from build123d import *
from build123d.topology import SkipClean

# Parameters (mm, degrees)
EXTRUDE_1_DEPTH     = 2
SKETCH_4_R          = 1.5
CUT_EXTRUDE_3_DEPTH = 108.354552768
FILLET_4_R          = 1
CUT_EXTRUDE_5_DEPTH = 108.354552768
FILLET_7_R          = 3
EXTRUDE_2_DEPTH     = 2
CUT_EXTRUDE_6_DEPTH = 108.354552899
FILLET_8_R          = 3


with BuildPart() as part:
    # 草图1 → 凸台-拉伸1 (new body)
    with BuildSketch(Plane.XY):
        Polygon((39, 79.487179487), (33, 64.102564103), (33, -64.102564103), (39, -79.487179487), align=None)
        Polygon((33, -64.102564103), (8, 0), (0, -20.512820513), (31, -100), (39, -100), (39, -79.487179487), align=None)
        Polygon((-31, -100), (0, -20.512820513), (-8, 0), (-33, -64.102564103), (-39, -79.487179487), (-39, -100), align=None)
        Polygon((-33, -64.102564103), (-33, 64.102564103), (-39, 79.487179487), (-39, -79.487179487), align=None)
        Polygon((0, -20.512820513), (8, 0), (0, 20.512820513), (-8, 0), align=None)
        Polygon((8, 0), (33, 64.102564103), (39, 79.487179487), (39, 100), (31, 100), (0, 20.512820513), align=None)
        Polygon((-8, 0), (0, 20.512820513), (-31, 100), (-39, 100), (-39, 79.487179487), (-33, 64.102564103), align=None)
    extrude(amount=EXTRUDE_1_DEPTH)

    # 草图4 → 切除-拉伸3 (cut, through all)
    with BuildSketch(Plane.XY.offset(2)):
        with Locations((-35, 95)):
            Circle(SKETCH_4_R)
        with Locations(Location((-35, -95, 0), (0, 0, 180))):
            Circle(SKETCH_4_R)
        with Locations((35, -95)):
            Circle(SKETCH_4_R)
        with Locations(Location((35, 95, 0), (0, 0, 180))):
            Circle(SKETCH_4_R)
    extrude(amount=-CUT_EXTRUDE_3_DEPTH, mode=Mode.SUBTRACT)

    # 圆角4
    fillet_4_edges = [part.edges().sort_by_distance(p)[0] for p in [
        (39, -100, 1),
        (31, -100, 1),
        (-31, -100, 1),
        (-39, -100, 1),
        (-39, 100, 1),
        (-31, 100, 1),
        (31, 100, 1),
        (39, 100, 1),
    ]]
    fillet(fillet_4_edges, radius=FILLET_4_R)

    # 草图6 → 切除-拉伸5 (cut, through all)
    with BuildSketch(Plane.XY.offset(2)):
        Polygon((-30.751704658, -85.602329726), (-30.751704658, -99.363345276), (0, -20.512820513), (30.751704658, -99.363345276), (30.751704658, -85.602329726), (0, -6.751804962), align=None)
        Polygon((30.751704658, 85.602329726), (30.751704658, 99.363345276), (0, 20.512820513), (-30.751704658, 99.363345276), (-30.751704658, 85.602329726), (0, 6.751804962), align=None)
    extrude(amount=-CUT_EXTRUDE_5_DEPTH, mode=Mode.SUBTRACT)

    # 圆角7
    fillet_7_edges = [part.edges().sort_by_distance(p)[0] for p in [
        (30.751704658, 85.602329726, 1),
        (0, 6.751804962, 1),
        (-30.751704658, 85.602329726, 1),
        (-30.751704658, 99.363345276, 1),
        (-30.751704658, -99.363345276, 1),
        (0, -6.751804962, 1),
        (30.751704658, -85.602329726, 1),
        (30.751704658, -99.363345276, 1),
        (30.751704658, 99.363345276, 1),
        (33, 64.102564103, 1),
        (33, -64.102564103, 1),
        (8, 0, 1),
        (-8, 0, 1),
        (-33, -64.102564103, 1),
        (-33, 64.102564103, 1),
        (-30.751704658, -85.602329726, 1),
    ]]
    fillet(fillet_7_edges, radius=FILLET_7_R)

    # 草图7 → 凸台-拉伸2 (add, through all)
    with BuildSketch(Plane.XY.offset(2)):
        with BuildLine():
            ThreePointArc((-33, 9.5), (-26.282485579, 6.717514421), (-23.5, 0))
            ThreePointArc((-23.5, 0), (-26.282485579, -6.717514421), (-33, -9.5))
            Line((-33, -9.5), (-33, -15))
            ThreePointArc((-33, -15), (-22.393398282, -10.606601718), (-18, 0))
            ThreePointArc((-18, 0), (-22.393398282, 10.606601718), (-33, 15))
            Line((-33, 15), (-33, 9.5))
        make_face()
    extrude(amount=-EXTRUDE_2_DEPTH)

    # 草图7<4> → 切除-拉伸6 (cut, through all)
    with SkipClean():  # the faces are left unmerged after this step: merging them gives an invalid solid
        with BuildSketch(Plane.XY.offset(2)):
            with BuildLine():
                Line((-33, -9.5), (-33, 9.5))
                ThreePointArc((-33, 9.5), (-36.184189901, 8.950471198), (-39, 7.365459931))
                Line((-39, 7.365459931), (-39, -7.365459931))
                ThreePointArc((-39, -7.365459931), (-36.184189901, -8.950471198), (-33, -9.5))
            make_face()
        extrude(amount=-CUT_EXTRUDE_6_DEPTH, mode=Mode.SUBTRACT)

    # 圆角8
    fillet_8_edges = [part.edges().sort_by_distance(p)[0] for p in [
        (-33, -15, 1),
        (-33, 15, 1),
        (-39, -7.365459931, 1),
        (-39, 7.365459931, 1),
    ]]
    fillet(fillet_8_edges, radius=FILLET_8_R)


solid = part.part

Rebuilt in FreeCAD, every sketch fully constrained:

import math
import FreeCAD as App
import Part
import Sketcher
Q = App.Units.Quantity


def edges_at(feature, points):
    """Names of the edges that pass closest to the given points."""
    edges = feature.Shape.Edges
    near = lambda p: min(range(len(edges)), key=lambda i: edges[i].distToShape(Part.Vertex(*p))[0])
    return sorted({f"Edge{near(p) + 1}" for p in points})


def add_polygon(sketch, points):
    """Adds a closed chain of lines whose ends are joined by coincident constraints."""
    first, n = sketch.GeometryCount, len(points)
    for a, b in zip(points, points[1:] + points[:1]):
        sketch.addGeometry(Part.LineSegment(App.Vector(*a, 0), App.Vector(*b, 0)), False)
    for i in range(n):
        sketch.addConstraint(Sketcher.Constraint("Coincident", first + i, 2, first + (i + 1) % n, 1))

doc = App.newDocument("Part")
body = doc.addObject("PartDesign::Body", "Body")

# Sketch on XY plane
sketch1 = doc.addObject("Sketcher::SketchObject", "Sketch")
body.addObject(sketch1)
sketch1.AttachmentSupport = (doc.XY_Plane, [""])
sketch1.MapMode = "FlatFace"
add_polygon(sketch1, [(-31, 100), (-39, 100), (-39, -100), (-31, -100), (0, -20.512821), (31, -100), (39, -100), (39, 100), (31, 100), (0, 20.512821)])  # lines 0-9
add_polygon(sketch1, [(8, 0), (33, 64.102564), (33, -64.102564)])  # lines 10-12
add_polygon(sketch1, [(-33, 64.102564), (-8, 0), (-33, -64.102564)])  # lines 13-15
sketch1.addConstraint([
    Sketcher.Constraint("Horizontal", 0),
    Sketcher.Constraint("Vertical", 1),
    Sketcher.Constraint("Horizontal", 2),
    Sketcher.Constraint("Horizontal", 5),
    Sketcher.Constraint("Vertical", 6),
    Sketcher.Constraint("Horizontal", 7),
    Sketcher.Constraint("Vertical", 11),
    Sketcher.Constraint("Vertical", 15),
    Sketcher.Constraint("Symmetric", 0, 2, 5, 2, -1, 1),
    Sketcher.Constraint("Symmetric", 2, 2, 7, 2, -1, 1),
    Sketcher.Constraint("Symmetric", 3, 2, 8, 2, -1, 1),
    Sketcher.Constraint("Symmetric", 12, 2, 13, 2, -1, 1),
    Sketcher.Constraint("Symmetric", 10, 2, 14, 2, -1, 1),
    Sketcher.Constraint("Symmetric", 2, 2, 4, 2, -2),
    Sketcher.Constraint("PointOnObject", 3, 2, -2),
    Sketcher.Constraint("PointOnObject", 12, 2, -1),
    Sketcher.Constraint("Parallel", 4, 9),
    Sketcher.Constraint("Parallel", 8, 10),
    Sketcher.Constraint("Parallel", 9, 12),
    Sketcher.Constraint("Parallel", 12, 13),
    Sketcher.Constraint("DistanceX", 0, 2, 0, 1, Q("8 mm")),
    Sketcher.Constraint("DistanceY", 1, 2, 1, 1, Q("200 mm")),
    Sketcher.Constraint("DistanceX", 0, 2, -1, 1, Q("39 mm")),
    Sketcher.Constraint("DistanceX", -1, 1, 10, 2, Q("33 mm")),
    Sketcher.Constraint("DistanceX", -1, 1, 12, 2, Q("8 mm")),
    Sketcher.Constraint("DistanceY", 11, 2, 11, 1, Q("128.205128 mm")),
])
pad1 = doc.addObject("PartDesign::Pad", "Pad")
body.addObject(pad1)
pad1.Profile = sketch1
pad1.Length = 2

# Sketch on XY plane
sketch2 = doc.addObject("Sketcher::SketchObject", "Sketch001")
body.addObject(sketch2)
sketch2.AttachmentSupport = (doc.XY_Plane, [""])
sketch2.MapMode = "FlatFace"
sketch2.AttachmentOffset = App.Placement(App.Vector(0, 0, 2), App.Rotation())
sketch2.addGeometry([
    Part.Circle(App.Vector(-35, 95, 0), App.Vector(0, 0, 1), 1.5),
    Part.Circle(App.Vector(-35, -95, 0), App.Vector(0, 0, 1), 1.5),
    Part.Circle(App.Vector(35, -95, 0), App.Vector(0, 0, 1), 1.5),
    Part.Circle(App.Vector(35, 95, 0), App.Vector(0, 0, 1), 1.5),
], False)
sketch2.addConstraint([
    Sketcher.Constraint("Equal", 0, 1),
    Sketcher.Constraint("Equal", 1, 2),
    Sketcher.Constraint("Equal", 2, 3),
    Sketcher.Constraint("Symmetric", 0, 3, 2, 3, -1, 1),
    Sketcher.Constraint("Symmetric", 1, 3, 3, 3, -1, 1),
    Sketcher.Constraint("Symmetric", 1, 3, 2, 3, -2),
    Sketcher.Constraint("Diameter", 0, Q("3 mm")),
    Sketcher.Constraint("DistanceX", 0, 3, -1, 1, Q("35 mm")),
    Sketcher.Constraint("DistanceY", -1, 1, 0, 3, Q("95 mm")),
])
pocket1 = doc.addObject("PartDesign::Pocket", "Pocket")
body.addObject(pocket1)
pocket1.Profile = sketch2
pocket1.Type = "ThroughAll"
doc.recompute()

fillet = doc.addObject("PartDesign::Fillet", "Fillet")
body.addObject(fillet)
fillet.Base = (pocket1, edges_at(pocket1, [
    (39, -100, 1),
    (31, -100, 1),
    (-31, -100, 1),
    (-39, -100, 1),
    (-39, 100, 1),
    (-31, 100, 1),
    (31, 100, 1),
    (39, 100, 1),
]))
fillet.Radius = 1

# Sketch on XY plane
sketch3 = doc.addObject("Sketcher::SketchObject", "Sketch002")
body.addObject(sketch3)
sketch3.AttachmentSupport = (doc.XY_Plane, [""])
sketch3.MapMode = "FlatFace"
sketch3.AttachmentOffset = App.Placement(App.Vector(0, 0, 2), App.Rotation())
add_polygon(sketch3, [(-30.751705, -85.60233), (-30.751705, -99.363345), (0, -20.512821), (30.751705, -99.363345), (30.751705, -85.60233), (0, -6.751805)])  # lines 0-5
add_polygon(sketch3, [(30.751705, 85.60233), (30.751705, 99.363345), (0, 20.512821), (-30.751705, 99.363345), (-30.751705, 85.60233), (0, 6.751805)])  # lines 6-11
sketch3.addConstraint([
    Sketcher.Constraint("Vertical", 0),
    Sketcher.Constraint("Vertical", 3),
    Sketcher.Constraint("Vertical", 6),
    Sketcher.Constraint("Vertical", 9),
    Sketcher.Constraint("Symmetric", 0, 2, 6, 2, -1, 1),
    Sketcher.Constraint("Symmetric", 1, 2, 7, 2, -1, 1),
    Sketcher.Constraint("Symmetric", 2, 2, 8, 2, -1, 1),
    Sketcher.Constraint("Symmetric", 4, 2, 10, 2, -1, 1),
    Sketcher.Constraint("Symmetric", 0, 2, 2, 2, -2),
    Sketcher.Constraint("PointOnObject", 1, 2, -2),
    Sketcher.Constraint("PointOnObject", 4, 2, -2),
    Sketcher.Constraint("Parallel", 2, 4),
    Sketcher.Constraint("Parallel", 1, 5),
    Sketcher.Constraint("Parallel", 8, 10),
    Sketcher.Constraint("Parallel", 7, 11),
    Sketcher.Constraint("DistanceY", 0, 2, 0, 1, Q("13.761016 mm")),
    Sketcher.Constraint("DistanceY", 1, 2, -1, 1, Q("20.512821 mm")),
    Sketcher.Constraint("DistanceY", 3, 2, -1, 1, Q("85.60233 mm")),
    Sketcher.Constraint("DistanceX", 0, 2, 2, 2, Q("61.503409 mm")),
])
pocket2 = doc.addObject("PartDesign::Pocket", "Pocket001")
body.addObject(pocket2)
pocket2.Profile = sketch3
pocket2.Type = "ThroughAll"
doc.recompute()

fillet2 = doc.addObject("PartDesign::Fillet", "Fillet001")
body.addObject(fillet2)
fillet2.Base = (pocket2, edges_at(pocket2, [
    (30.752, 85.602, 1),
    (0, 6.752, 1),
    (-30.752, 85.602, 1),
    (-30.752, 99.363, 1),
    (-30.752, -99.363, 1),
    (0, -6.752, 1),
    (30.752, -85.602, 1),
    (30.752, -99.363, 1),
    (30.752, 99.363, 1),
    (33, 64.103, 1),
    (33, -64.103, 1),
    (8, 0, 1),
    (-8, 0, 1),
    (-33, -64.103, 1),
    (-33, 64.103, 1),
    (-30.752, -85.602, 1),
]))
fillet2.Radius = 3

# Sketch on XY plane
sketch4 = doc.addObject("Sketcher::SketchObject", "Sketch003")
body.addObject(sketch4)
sketch4.AttachmentSupport = (doc.XY_Plane, [""])
sketch4.MapMode = "FlatFace"
sketch4.AttachmentOffset = App.Placement(App.Vector(0, 0, 2), App.Rotation())
sketch4.addGeometry([
    Part.ArcOfCircle(Part.Circle(App.Vector(-33, 0, 0), App.Vector(0, 0, 1), 9.5), math.radians(0), math.radians(90)),  # 0
    Part.ArcOfCircle(Part.Circle(App.Vector(-33, 0, 0), App.Vector(0, 0, 1), 9.5), math.radians(-90), math.radians(0)),  # 1
    Part.LineSegment(App.Vector(-33, -9.5, 0), App.Vector(-33, -15, 0)),  # 2
    Part.ArcOfCircle(Part.Circle(App.Vector(-33, 0, 0), App.Vector(0, 0, 1), 15), math.radians(-90), math.radians(0)),  # 3
    Part.ArcOfCircle(Part.Circle(App.Vector(-33, 0, 0), App.Vector(0, 0, 1), 15), math.radians(0), math.radians(90)),  # 4
    Part.LineSegment(App.Vector(-33, 15, 0), App.Vector(-33, 9.5, 0)),  # 5
], False)
sketch4.addConstraint([
    Sketcher.Constraint("Tangent", 0, 1, 1, 2),
    Sketcher.Constraint("Coincident", 1, 1, 2, 1),
    Sketcher.Constraint("Coincident", 2, 2, 3, 1),
    Sketcher.Constraint("Tangent", 3, 2, 4, 1),
    Sketcher.Constraint("Coincident", 4, 2, 5, 1),
    Sketcher.Constraint("Coincident", 5, 2, 0, 2),
    Sketcher.Constraint("Vertical", 2),
    Sketcher.Constraint("Vertical", 5),
    Sketcher.Constraint("Coincident", 3, 3, 0, 3),
    Sketcher.Constraint("Equal", 0, 1),
    Sketcher.Constraint("Equal", 3, 4),
    Sketcher.Constraint("Symmetric", 2, 2, 4, 2, -1),
    Sketcher.Constraint("PointOnObject", 0, 1, -1),
    Sketcher.Constraint("PointOnObject", 3, 2, -1),
    Sketcher.Constraint("Vertical", 4, 3, 1, 1),
    Sketcher.Constraint("Radius", 3, Q("15 mm")),
    Sketcher.Constraint("Radius", 0, Q("9.5 mm")),
    Sketcher.Constraint("DistanceX", 0, 3, -1, 1, Q("33 mm")),
])
pad2 = doc.addObject("PartDesign::Pad", "Pad001")
body.addObject(pad2)
pad2.Profile = sketch4
pad2.Length = 2
pad2.Reversed = True

# Sketch on XY plane
sketch5 = doc.addObject("Sketcher::SketchObject", "Sketch004")
body.addObject(sketch5)
sketch5.AttachmentSupport = (doc.XY_Plane, [""])
sketch5.MapMode = "FlatFace"
sketch5.AttachmentOffset = App.Placement(App.Vector(0, 0, 2), App.Rotation())
sketch5.addGeometry([
    Part.LineSegment(App.Vector(-33, -9.5, 0), App.Vector(-33, 9.5, 0)),
    Part.ArcOfCircle(Part.Circle(App.Vector(-33, 0, 0), App.Vector(0, 0, 1), 9.5), math.radians(90), math.radians(129.166711)),
    Part.LineSegment(App.Vector(-39, 7.36546, 0), App.Vector(-39, -7.36546, 0)),
    Part.ArcOfCircle(Part.Circle(App.Vector(-33, 0, 0), App.Vector(0, 0, 1), 9.5), math.radians(-129.166711), math.radians(-90)),
], False)
sketch5.addConstraint([
    Sketcher.Constraint("Coincident", 0, 2, 1, 1),
    Sketcher.Constraint("Coincident", 1, 2, 2, 1),
    Sketcher.Constraint("Coincident", 2, 2, 3, 1),
    Sketcher.Constraint("Coincident", 3, 2, 0, 1),
    Sketcher.Constraint("Vertical", 0),
    Sketcher.Constraint("Vertical", 2),
    Sketcher.Constraint("Coincident", 3, 3, 1, 3),
    Sketcher.Constraint("Equal", 1, 3),
    Sketcher.Constraint("PointOnObject", 1, 3, -1),
    Sketcher.Constraint("Vertical", 3, 3, 0, 2),
    Sketcher.Constraint("Radius", 1, Q("9.5 mm")),
    Sketcher.Constraint("DistanceX", 1, 3, -1, 1, Q("33 mm")),
    Sketcher.Constraint("DistanceX", 1, 2, -1, 1, Q("39 mm")),
])
pocket3 = doc.addObject("PartDesign::Pocket", "Pocket002")
body.addObject(pocket3)
pocket3.Profile = sketch5
pocket3.Type = "ThroughAll"
doc.recompute()

fillet3 = doc.addObject("PartDesign::Fillet", "Fillet002")
body.addObject(fillet3)
fillet3.Base = (pocket3, edges_at(pocket3, [
    (-33, -15, 1),
    (-33, 15, 1),
    (-39, -7.365, 1),
    (-39, 7.365, 1),
]))
fillet3.Radius = 3

doc.recompute()
